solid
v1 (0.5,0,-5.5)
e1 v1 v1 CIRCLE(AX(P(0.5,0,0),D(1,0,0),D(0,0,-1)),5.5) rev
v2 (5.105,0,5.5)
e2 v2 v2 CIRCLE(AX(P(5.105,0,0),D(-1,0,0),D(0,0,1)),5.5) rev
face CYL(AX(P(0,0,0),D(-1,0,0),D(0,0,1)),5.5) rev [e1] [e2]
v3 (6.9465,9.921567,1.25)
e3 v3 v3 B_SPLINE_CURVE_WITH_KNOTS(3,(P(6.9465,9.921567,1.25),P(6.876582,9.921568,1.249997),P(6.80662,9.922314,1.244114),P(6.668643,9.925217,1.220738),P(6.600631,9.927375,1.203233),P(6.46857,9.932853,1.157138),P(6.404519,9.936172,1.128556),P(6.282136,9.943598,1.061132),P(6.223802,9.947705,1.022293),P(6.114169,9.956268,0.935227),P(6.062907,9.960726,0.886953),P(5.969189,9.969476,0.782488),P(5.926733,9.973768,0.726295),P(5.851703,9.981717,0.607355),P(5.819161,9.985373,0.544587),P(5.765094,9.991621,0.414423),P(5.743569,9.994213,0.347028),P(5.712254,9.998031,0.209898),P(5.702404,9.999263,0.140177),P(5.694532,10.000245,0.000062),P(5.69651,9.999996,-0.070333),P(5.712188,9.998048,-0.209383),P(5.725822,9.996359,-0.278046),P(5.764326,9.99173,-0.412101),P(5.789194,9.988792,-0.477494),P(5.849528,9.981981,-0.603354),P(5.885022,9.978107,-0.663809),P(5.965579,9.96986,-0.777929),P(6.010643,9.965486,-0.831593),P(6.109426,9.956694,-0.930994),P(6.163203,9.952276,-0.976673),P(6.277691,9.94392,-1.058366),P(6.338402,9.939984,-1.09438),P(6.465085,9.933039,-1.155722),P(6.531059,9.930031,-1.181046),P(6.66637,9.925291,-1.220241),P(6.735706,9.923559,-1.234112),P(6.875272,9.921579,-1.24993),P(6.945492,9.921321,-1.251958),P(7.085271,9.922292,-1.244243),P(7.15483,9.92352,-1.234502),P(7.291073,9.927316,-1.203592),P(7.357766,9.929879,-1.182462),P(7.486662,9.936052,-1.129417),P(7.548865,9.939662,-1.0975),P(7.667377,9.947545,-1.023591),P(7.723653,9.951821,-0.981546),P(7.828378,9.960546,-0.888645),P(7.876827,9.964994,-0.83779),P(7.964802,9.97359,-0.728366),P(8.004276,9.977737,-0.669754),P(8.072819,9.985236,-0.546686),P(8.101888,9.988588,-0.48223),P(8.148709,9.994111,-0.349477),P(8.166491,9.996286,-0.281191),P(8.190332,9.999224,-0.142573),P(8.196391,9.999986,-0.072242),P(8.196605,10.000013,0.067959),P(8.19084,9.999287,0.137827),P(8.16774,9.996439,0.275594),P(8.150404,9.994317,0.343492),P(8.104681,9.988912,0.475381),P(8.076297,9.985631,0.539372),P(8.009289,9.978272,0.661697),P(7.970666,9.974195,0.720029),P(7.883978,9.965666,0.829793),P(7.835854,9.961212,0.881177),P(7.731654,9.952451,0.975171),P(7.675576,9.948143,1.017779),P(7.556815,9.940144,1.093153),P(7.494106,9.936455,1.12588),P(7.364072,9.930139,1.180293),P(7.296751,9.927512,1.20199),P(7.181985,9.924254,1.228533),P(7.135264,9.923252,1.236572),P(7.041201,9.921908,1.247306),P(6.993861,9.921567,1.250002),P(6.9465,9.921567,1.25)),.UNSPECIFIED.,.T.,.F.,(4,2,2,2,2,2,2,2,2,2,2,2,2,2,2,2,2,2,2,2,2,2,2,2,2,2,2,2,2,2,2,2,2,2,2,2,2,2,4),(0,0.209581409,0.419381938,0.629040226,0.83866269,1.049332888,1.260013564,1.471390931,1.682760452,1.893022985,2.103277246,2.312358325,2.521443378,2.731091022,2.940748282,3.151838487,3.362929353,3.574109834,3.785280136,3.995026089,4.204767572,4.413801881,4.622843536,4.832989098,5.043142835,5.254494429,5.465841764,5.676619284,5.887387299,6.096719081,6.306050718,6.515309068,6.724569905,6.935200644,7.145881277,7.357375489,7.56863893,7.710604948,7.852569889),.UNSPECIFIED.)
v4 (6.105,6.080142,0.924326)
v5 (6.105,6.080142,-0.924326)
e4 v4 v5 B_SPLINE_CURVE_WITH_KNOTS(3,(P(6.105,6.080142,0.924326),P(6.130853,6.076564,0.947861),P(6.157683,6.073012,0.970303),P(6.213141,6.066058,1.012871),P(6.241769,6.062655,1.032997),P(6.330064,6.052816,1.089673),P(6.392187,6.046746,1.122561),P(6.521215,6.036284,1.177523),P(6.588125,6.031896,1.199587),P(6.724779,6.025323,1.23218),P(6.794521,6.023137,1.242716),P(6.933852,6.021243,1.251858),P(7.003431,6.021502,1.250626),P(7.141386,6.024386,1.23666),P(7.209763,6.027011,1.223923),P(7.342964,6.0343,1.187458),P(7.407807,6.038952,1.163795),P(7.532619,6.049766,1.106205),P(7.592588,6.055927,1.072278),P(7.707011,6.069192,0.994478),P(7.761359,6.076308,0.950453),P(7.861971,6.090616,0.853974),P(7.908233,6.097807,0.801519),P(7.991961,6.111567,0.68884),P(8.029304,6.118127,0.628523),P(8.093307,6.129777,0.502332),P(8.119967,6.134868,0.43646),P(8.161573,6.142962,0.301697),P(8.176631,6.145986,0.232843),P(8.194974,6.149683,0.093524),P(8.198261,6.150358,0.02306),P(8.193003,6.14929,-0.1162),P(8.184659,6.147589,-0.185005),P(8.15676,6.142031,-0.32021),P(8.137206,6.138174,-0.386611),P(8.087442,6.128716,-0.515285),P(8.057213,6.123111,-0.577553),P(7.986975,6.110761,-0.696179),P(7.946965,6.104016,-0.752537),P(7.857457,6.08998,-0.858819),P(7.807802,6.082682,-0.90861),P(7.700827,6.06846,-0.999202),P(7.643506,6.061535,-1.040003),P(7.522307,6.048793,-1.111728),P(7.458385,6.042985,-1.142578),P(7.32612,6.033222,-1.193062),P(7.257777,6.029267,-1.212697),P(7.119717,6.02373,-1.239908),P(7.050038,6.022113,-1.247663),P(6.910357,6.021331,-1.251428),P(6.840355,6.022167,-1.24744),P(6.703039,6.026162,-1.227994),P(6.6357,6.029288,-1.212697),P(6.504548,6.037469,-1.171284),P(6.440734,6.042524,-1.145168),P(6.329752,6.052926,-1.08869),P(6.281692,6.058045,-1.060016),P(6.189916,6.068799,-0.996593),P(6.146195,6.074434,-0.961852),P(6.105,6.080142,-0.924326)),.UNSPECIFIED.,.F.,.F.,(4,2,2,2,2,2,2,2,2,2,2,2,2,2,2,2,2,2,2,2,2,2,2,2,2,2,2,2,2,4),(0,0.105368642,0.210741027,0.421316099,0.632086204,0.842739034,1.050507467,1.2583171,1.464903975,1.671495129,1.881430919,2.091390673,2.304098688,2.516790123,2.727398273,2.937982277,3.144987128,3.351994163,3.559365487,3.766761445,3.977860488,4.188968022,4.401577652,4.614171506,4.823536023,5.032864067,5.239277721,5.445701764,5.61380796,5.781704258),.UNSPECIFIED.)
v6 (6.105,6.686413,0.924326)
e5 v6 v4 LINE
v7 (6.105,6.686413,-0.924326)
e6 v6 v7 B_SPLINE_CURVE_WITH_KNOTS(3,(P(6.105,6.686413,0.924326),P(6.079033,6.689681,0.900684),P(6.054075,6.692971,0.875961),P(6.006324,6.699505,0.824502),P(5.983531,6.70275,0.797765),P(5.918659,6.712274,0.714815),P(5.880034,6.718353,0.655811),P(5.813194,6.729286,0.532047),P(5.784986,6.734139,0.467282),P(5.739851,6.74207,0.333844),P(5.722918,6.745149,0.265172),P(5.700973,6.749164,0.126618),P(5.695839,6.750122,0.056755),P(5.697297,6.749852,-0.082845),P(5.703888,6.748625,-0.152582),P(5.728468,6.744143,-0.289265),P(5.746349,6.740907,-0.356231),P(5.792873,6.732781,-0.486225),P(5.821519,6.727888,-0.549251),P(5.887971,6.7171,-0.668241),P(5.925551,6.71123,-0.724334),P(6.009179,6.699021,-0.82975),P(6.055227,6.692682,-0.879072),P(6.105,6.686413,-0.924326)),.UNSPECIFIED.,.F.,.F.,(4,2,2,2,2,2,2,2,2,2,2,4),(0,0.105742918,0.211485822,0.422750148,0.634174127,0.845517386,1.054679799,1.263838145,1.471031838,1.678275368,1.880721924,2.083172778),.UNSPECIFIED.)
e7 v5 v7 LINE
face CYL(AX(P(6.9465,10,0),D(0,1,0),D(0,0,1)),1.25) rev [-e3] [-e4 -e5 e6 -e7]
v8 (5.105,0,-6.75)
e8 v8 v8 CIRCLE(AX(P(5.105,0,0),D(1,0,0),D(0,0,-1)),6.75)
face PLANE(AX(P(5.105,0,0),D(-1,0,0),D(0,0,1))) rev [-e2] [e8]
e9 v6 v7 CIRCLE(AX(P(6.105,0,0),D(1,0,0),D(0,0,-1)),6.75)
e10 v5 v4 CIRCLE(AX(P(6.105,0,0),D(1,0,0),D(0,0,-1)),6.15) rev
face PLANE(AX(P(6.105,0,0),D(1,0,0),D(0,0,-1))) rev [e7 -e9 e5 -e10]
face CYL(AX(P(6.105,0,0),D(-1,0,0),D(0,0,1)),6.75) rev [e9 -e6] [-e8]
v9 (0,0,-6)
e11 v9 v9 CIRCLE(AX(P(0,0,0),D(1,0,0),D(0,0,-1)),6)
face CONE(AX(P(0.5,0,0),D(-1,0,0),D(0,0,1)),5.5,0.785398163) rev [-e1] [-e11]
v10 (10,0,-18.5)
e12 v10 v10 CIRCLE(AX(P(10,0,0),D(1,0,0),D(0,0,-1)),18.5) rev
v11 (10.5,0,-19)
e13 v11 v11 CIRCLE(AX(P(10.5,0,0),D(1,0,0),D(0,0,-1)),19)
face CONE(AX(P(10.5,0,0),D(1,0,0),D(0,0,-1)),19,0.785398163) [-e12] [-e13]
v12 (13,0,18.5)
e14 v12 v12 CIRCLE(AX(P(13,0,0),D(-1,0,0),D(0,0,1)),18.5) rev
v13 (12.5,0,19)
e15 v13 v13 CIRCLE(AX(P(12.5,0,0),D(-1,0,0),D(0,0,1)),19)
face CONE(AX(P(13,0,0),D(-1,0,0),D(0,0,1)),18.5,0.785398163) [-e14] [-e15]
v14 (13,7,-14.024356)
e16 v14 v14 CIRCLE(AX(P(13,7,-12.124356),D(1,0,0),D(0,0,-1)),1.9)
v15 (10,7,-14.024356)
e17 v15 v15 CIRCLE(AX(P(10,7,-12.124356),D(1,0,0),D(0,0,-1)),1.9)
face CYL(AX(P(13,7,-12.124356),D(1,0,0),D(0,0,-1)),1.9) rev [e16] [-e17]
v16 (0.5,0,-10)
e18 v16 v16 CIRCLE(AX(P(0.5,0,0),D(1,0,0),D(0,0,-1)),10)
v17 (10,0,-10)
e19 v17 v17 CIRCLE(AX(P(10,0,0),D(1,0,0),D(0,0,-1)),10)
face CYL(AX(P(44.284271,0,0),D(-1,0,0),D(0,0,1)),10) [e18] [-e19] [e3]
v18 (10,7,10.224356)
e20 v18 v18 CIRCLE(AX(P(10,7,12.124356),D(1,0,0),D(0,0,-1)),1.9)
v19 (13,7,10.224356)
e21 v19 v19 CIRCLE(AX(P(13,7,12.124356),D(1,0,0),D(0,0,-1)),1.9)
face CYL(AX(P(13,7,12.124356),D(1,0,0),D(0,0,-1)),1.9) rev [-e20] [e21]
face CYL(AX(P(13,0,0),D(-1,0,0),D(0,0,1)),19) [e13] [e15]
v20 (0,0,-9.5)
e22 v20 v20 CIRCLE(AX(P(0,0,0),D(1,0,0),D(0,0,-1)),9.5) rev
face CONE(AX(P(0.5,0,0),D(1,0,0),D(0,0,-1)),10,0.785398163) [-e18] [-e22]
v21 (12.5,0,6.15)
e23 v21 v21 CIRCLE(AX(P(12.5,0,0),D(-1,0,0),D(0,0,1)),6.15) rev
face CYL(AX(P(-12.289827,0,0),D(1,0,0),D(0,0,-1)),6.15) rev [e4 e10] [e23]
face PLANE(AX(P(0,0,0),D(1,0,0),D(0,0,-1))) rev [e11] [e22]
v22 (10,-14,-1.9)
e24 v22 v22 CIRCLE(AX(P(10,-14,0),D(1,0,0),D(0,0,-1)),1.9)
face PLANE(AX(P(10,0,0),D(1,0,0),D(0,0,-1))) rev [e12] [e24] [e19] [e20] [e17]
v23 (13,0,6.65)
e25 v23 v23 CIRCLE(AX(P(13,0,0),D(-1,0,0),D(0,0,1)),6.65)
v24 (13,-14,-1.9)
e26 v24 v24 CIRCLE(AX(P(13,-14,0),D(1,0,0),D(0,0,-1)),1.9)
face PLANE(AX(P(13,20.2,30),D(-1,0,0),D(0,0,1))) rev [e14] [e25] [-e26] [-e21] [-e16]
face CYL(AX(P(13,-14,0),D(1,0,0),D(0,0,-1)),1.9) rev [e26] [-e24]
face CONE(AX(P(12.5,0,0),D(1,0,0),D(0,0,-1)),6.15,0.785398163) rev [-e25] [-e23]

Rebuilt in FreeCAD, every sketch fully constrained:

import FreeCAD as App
import Part
import Sketcher

V = App.Vector


def edges_at(feature, points):
    """Names of the edges that pass closest to the given points."""
    edges = feature.Shape.Edges
    near = lambda p: min(range(len(edges)), key=lambda i: edges[i].distToShape(Part.Vertex(*p))[0])
    return sorted({f"Edge{near(p) + 1}" for p in points})

doc = App.newDocument("Part")
params = doc.addObject("Spreadsheet::Sheet", "Params")
for row, (alias, value) in enumerate([
    ("sketch1_diameter", "20 mm"),
    ("pad1_length", "13 mm"),
    ("sketch2_diameter", "11 mm"),
    ("hole_diameter", "11 mm"),
    ("chamfer_size", "0.5 mm"),
    ("sketch3_diameter", "12.3 mm"),
    ("pocket1_length", "7.895 mm"),
    ("sketch4_diameter", "13.5 mm"),
    ("pocket2_length", "1 mm"),
    ("sketch5_diameter", "38 mm"),
    ("sketch5_diameter2", "12.3 mm"),
    ("pad2_length", "3 mm"),
    ("chamfer2_size", "0.5 mm"),
    ("sketch6_diameter", "2.5 mm"),
    ("pocket3_length", "3.978372 mm"),
    ("sketch7_diameter", "3.8 mm"),
    ("hole2_diameter", "3.8 mm"),
    ("chamfer3_size", "0.5 mm"),
], start=1):
    params.set(f"A{row}", alias)
    params.set(f"B{row}", "=" + value)
    params.setAlias(f"B{row}", alias)

body = doc.addObject("PartDesign::Body", "Body")

sketch1 = body.newObject("Sketcher::SketchObject", "Sketch")
sketch1.AttachmentSupport = (doc.getObject("YZ_Plane"), [""])
sketch1.MapMode = "FlatFace"
sketch1.addGeometry(Part.Circle(V(0, 0, 0), V(0, 0, 1), 10), False)
sketch1.addConstraint([
    Sketcher.Constraint("Coincident", 0, 3, -1, 1),
    Sketcher.Constraint("Diameter", 0, 20.0),
])
sketch1.setExpression("Constraints[1]", "Params.sketch1_diameter")
pad1 = body.newObject("PartDesign::Pad", "Pad")
pad1.Profile = sketch1
pad1.setExpression("Length", "Params.pad1_length")

sketch2 = body.newObject("Sketcher::SketchObject", "Sketch001")
sketch2.AttachmentSupport = (doc.getObject("YZ_Plane"), [""])
sketch2.MapMode = "FlatFace"
sketch2.addGeometry(Part.Circle(V(0, 0, 0), V(0, 0, 1), 6), False)
sketch2.addConstraint([
    Sketcher.Constraint("Coincident", 0, 3, -1, 1),
    Sketcher.Constraint("Diameter", 0, 11.0),
])
sketch2.setExpression("Constraints[1]", "Params.sketch2_diameter")
doc.recompute()
hole = body.newObject("PartDesign::Hole", "Hole")
hole.Profile = sketch2
hole.ThreadType = "None"
hole.setExpression("Diameter", "Params.hole_diameter")
hole.DepthType = "ThroughAll"
hole.Reversed = True
doc.recompute()

chamfer = body.newObject("PartDesign::Chamfer", "Chamfer")
chamfer.Base = (hole, edges_at(hole, [(0, 0, -5.5)]))
chamfer.setExpression("Size", "Params.chamfer_size")

sketch3 = body.newObject("Sketcher::SketchObject", "Sketch002")
sketch3.AttachmentSupport = (doc.getObject("YZ_Plane"), [""])
sketch3.MapMode = "FlatFace"
sketch3.AttachmentOffset = App.Placement(V(0, 0, 5.105), App.Rotation())
sketch3.addGeometry(Part.Circle(V(0, 0, 0), V(0, 0, 1), 6), False)
sketch3.addConstraint([
    Sketcher.Constraint("Coincident", 0, 3, -1, 1),
    Sketcher.Constraint("Diameter", 0, 12.3),
])
sketch3.setExpression("Constraints[1]", "Params.sketch3_diameter")
pocket1 = body.newObject("PartDesign::Pocket", "Pocket")
pocket1.Profile = sketch3
pocket1.setExpression("Length", "Params.pocket1_length")
pocket1.Reversed = True

sketch4 = body.newObject("Sketcher::SketchObject", "Sketch003")
sketch4.AttachmentSupport = (doc.getObject("YZ_Plane"), [""])
sketch4.MapMode = "FlatFace"
sketch4.AttachmentOffset = App.Placement(V(0, 0, 5.105), App.Rotation())
sketch4.addGeometry(Part.Circle(V(0, 0, 0), V(0, 0, 1), 7), False)
sketch4.addConstraint([
    Sketcher.Constraint("Coincident", 0, 3, -1, 1),
    Sketcher.Constraint("Diameter", 0, 13.5),
])
sketch4.setExpression("Constraints[1]", "Params.sketch4_diameter")
pocket2 = body.newObject("PartDesign::Pocket", "Pocket001")
pocket2.Profile = sketch4
pocket2.setExpression("Length", "Params.pocket2_length")
pocket2.Reversed = True

sketch5 = body.newObject("Sketcher::SketchObject", "Sketch004")
sketch5.AttachmentSupport = (doc.getObject("YZ_Plane"), [""])
sketch5.MapMode = "FlatFace"
sketch5.AttachmentOffset = App.Placement(V(0, 0, 10), App.Rotation())
sketch5.addGeometry([
    Part.Circle(V(0, 0, 0), V(0, 0, 1), 19),
    Part.Circle(V(0, 0, 0), V(0, 0, 1), 6),
], False)
sketch5.addConstraint([
    Sketcher.Constraint("Coincident", 0, 3, -1, 1),
    Sketcher.Constraint("Coincident", 1, 3, -1, 1),
    Sketcher.Constraint("Diameter", 0, 38.0),
    Sketcher.Constraint("Diameter", 1, 12.3),
])
sketch5.setExpression("Constraints[2]", "Params.sketch5_diameter")
sketch5.setExpression("Constraints[3]", "Params.sketch5_diameter2")
pad2 = body.newObject("PartDesign::Pad", "Pad001")
pad2.Profile = sketch5
pad2.setExpression("Length", "Params.pad2_length")
doc.recompute()

chamfer2 = body.newObject("PartDesign::Chamfer", "Chamfer001")
chamfer2.Base = (pad2, edges_at(pad2, [(13, 0, 6.15)]))
chamfer2.setExpression("Size", "Params.chamfer2_size")

sketch6 = body.newObject("Sketcher::SketchObject", "Sketch005")
sketch6.AttachmentSupport = (doc.getObject("XZ_Plane"), [""])
sketch6.MapMode = "FlatFace"
sketch6.AttachmentOffset = App.Placement(V(0, 0, -10), App.Rotation())
sketch6.addGeometry(Part.Circle(V(6.9, 0, 0), V(0, 0, 1), 1.2), False)
sketch6.addConstraint([
    Sketcher.Constraint("PointOnObject", 0, 3, -1),
    Sketcher.Constraint("Diameter", 0, 2.5),
    Sketcher.Constraint("DistanceX", -1, 1, 0, 3, 6.9465),
])
sketch6.setExpression("Constraints[1]", "Params.sketch6_diameter")
pocket3 = body.newObject("PartDesign::Pocket", "Pocket002")
pocket3.Profile = sketch6
pocket3.setExpression("Length", "Params.pocket3_length")
pocket3.Reversed = True

sketch7 = body.newObject("Sketcher::SketchObject", "Sketch006")
sketch7.AttachmentSupport = (doc.getObject("YZ_Plane"), [""])
sketch7.MapMode = "FlatFace"
sketch7.AttachmentOffset = App.Placement(V(0, 0, 13), App.Rotation())
sketch7.addGeometry(Part.Circle(V(-14, 0, 0), V(0, 0, 1), 1.9), False)
sketch7.addConstraint([
    Sketcher.Constraint("PointOnObject", 0, 3, -1),
    Sketcher.Constraint("Diameter", 0, 3.8),
    Sketcher.Constraint("DistanceX", 0, 3, -1, 1, 14.0),
])
sketch7.setExpression("Constraints[1]", "Params.sketch7_diameter")
doc.recompute()
hole2 = body.newObject("PartDesign::Hole", "Hole001")
hole2.Profile = sketch7
hole2.ThreadType = "None"
hole2.setExpression("Diameter", "Params.hole2_diameter")
hole2.DepthType = "ThroughAll"
doc.recompute()

polarpattern = body.newObject("PartDesign::PolarPattern", "PolarPattern")
polarpattern.Originals = [hole2]
polarpattern.Axis = (doc.getObject("X_Axis"), [""])
polarpattern.Angle = 360
polarpattern.Occurrences = 3
body.Tip = polarpattern
doc.recompute()

chamfer3 = body.newObject("PartDesign::Chamfer", "Chamfer002")
chamfer3.Base = (polarpattern, edges_at(polarpattern, [(0, 0, -10), (13, 0, 19), (10, 0, 19)]))
chamfer3.setExpression("Size", "Params.chamfer3_size")

doc.recompute()
